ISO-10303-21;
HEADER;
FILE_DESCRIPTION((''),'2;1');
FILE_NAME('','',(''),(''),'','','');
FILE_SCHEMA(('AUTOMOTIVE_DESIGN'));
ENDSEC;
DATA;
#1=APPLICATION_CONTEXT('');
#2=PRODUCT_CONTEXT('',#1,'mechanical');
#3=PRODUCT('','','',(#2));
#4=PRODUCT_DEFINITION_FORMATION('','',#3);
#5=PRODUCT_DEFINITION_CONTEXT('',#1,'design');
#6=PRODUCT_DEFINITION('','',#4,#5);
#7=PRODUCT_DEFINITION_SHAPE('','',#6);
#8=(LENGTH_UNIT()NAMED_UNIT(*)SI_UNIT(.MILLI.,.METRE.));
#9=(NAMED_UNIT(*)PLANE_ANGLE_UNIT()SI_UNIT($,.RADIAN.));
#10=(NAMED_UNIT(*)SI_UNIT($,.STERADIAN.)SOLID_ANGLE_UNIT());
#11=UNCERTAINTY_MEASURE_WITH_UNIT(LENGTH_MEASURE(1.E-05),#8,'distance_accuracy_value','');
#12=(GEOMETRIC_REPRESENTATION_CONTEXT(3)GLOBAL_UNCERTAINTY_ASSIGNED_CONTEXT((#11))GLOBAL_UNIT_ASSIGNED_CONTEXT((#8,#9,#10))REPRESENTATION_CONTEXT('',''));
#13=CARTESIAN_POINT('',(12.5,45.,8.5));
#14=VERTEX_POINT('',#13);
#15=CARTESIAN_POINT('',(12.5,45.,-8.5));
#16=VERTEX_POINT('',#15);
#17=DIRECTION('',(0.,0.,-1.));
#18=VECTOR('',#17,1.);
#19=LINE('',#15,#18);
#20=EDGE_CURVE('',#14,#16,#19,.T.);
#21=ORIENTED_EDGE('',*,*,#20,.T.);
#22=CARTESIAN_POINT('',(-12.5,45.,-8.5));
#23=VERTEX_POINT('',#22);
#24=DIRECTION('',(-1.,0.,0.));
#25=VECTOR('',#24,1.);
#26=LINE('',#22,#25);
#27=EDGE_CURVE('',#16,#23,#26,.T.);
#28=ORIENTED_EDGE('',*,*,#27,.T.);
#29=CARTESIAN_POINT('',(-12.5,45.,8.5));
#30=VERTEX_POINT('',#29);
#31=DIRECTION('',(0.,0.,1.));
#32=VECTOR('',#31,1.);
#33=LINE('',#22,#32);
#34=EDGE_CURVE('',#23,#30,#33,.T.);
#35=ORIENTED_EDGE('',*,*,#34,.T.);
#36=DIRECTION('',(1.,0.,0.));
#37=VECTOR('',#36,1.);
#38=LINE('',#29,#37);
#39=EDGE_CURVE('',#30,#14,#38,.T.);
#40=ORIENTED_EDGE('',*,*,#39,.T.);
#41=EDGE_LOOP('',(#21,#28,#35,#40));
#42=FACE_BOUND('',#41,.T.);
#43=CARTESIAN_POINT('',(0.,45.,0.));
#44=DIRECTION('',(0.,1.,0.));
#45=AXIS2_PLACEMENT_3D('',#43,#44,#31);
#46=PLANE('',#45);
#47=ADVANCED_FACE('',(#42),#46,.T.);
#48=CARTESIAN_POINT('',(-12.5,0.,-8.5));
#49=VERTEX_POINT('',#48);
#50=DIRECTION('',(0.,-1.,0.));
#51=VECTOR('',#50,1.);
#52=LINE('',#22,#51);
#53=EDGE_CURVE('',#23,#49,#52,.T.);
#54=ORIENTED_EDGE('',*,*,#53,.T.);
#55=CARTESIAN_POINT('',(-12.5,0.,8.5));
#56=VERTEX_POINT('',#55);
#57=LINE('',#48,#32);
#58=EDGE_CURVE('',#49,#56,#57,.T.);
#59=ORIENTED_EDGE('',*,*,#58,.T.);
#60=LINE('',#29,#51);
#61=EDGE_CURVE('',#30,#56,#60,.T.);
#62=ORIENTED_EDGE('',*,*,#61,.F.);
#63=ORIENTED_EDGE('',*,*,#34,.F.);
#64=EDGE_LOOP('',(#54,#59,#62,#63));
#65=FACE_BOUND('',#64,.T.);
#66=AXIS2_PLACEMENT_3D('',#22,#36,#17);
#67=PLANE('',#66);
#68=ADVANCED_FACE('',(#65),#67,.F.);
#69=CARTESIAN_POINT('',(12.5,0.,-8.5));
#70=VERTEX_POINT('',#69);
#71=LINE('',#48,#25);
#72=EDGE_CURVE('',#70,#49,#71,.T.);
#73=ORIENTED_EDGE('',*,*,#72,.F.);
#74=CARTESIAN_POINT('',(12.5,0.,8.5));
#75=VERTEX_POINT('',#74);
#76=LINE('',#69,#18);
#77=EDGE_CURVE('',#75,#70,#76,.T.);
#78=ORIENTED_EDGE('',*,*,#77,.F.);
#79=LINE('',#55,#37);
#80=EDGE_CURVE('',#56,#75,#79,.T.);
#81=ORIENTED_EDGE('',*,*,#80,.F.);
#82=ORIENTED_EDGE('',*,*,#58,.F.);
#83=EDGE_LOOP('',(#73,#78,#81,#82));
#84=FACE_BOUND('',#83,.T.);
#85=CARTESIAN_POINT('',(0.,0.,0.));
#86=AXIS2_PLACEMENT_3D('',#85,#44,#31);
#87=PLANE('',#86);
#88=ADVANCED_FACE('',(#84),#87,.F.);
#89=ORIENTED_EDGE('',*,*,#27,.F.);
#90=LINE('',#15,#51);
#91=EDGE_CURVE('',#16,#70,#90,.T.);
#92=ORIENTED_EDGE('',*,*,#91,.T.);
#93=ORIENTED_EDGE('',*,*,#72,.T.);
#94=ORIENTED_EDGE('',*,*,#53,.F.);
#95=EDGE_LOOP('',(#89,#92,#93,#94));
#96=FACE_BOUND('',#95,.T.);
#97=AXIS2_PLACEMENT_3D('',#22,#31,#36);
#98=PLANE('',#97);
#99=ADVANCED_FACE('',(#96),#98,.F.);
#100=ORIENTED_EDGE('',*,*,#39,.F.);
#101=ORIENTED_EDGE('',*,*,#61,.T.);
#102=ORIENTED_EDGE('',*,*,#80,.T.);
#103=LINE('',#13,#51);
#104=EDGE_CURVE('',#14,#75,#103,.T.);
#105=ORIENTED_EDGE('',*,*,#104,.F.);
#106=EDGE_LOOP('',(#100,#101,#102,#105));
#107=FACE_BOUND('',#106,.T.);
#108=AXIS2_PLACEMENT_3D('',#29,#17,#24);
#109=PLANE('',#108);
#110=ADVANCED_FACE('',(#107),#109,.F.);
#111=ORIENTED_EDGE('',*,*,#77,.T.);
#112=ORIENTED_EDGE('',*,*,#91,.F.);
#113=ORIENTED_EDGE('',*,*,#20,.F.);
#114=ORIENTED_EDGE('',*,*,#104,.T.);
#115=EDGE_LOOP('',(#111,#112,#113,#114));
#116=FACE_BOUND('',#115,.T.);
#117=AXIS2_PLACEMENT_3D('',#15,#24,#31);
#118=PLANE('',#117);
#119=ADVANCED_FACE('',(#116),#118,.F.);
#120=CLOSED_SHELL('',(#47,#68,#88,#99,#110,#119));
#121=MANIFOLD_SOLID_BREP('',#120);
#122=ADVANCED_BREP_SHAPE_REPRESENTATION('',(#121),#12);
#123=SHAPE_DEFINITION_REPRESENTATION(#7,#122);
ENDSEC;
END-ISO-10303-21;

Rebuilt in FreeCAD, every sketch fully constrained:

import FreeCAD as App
import Part
import Sketcher
from FreeCAD import Vector
Q = App.Units.Quantity


def add_polygon(sketch, points):
    """Adds a closed chain of lines whose ends are joined by coincident constraints."""
    first, n = sketch.GeometryCount, len(points)
    for a, b in zip(points, points[1:] + points[:1]):
        sketch.addGeometry(Part.LineSegment(App.Vector(*a, 0), App.Vector(*b, 0)), False)
    for i in range(n):
        sketch.addConstraint(Sketcher.Constraint("Coincident", first + i, 2, first + (i + 1) % n, 1))

doc = App.newDocument("Part")
params = doc.addObject("Spreadsheet::Sheet", "Params")
for row, (alias, value) in enumerate([
    ("sketch1_width", "25 mm"),
    ("sketch1_height", "17 mm"),
    ("pad1_length", "45 mm"),
], start=1):
    params.set(f"A{row}", alias)
    params.set(f"B{row}", "=" + value)
    params.setAlias(f"B{row}", alias)

body = doc.addObject("PartDesign::Body", "Body")

sketch1 = body.newObject("Sketcher::SketchObject", "Sketch")
sketch1.AttachmentSupport = (doc.getObject("XZ_Plane"), [""])
sketch1.MapMode = "FlatFace"
add_polygon(sketch1, [(-12, -8), (-12, 8), (12, 8), (12, -8)])
sketch1.addConstraint(Sketcher.Constraint("Vertical", 0))
sketch1.addConstraint(Sketcher.Constraint("Horizontal", 1))
sketch1.addConstraint(Sketcher.Constraint("Vertical", 2))
sketch1.addConstraint(Sketcher.Constraint("Horizontal", 3))
sketch1.addConstraint(Sketcher.Constraint("Symmetric", 0, 2, 2, 2, -1, 1))
sketch1.addConstraint(Sketcher.Constraint("DistanceX", 1, 1, 1, 2, Q("25 mm")))
sketch1.addConstraint(Sketcher.Constraint("DistanceY", 0, 1, 0, 2, Q("17 mm")))
sketch1.setExpression("Constraints[9]", "Params.sketch1_width")
sketch1.setExpression("Constraints[10]", "Params.sketch1_height")
pad1 = body.newObject("PartDesign::Pad", "Pad")
pad1.Profile = sketch1
pad1.setExpression("Length", "Params.pad1_length")
pad1.Reversed = True

doc.recompute()
